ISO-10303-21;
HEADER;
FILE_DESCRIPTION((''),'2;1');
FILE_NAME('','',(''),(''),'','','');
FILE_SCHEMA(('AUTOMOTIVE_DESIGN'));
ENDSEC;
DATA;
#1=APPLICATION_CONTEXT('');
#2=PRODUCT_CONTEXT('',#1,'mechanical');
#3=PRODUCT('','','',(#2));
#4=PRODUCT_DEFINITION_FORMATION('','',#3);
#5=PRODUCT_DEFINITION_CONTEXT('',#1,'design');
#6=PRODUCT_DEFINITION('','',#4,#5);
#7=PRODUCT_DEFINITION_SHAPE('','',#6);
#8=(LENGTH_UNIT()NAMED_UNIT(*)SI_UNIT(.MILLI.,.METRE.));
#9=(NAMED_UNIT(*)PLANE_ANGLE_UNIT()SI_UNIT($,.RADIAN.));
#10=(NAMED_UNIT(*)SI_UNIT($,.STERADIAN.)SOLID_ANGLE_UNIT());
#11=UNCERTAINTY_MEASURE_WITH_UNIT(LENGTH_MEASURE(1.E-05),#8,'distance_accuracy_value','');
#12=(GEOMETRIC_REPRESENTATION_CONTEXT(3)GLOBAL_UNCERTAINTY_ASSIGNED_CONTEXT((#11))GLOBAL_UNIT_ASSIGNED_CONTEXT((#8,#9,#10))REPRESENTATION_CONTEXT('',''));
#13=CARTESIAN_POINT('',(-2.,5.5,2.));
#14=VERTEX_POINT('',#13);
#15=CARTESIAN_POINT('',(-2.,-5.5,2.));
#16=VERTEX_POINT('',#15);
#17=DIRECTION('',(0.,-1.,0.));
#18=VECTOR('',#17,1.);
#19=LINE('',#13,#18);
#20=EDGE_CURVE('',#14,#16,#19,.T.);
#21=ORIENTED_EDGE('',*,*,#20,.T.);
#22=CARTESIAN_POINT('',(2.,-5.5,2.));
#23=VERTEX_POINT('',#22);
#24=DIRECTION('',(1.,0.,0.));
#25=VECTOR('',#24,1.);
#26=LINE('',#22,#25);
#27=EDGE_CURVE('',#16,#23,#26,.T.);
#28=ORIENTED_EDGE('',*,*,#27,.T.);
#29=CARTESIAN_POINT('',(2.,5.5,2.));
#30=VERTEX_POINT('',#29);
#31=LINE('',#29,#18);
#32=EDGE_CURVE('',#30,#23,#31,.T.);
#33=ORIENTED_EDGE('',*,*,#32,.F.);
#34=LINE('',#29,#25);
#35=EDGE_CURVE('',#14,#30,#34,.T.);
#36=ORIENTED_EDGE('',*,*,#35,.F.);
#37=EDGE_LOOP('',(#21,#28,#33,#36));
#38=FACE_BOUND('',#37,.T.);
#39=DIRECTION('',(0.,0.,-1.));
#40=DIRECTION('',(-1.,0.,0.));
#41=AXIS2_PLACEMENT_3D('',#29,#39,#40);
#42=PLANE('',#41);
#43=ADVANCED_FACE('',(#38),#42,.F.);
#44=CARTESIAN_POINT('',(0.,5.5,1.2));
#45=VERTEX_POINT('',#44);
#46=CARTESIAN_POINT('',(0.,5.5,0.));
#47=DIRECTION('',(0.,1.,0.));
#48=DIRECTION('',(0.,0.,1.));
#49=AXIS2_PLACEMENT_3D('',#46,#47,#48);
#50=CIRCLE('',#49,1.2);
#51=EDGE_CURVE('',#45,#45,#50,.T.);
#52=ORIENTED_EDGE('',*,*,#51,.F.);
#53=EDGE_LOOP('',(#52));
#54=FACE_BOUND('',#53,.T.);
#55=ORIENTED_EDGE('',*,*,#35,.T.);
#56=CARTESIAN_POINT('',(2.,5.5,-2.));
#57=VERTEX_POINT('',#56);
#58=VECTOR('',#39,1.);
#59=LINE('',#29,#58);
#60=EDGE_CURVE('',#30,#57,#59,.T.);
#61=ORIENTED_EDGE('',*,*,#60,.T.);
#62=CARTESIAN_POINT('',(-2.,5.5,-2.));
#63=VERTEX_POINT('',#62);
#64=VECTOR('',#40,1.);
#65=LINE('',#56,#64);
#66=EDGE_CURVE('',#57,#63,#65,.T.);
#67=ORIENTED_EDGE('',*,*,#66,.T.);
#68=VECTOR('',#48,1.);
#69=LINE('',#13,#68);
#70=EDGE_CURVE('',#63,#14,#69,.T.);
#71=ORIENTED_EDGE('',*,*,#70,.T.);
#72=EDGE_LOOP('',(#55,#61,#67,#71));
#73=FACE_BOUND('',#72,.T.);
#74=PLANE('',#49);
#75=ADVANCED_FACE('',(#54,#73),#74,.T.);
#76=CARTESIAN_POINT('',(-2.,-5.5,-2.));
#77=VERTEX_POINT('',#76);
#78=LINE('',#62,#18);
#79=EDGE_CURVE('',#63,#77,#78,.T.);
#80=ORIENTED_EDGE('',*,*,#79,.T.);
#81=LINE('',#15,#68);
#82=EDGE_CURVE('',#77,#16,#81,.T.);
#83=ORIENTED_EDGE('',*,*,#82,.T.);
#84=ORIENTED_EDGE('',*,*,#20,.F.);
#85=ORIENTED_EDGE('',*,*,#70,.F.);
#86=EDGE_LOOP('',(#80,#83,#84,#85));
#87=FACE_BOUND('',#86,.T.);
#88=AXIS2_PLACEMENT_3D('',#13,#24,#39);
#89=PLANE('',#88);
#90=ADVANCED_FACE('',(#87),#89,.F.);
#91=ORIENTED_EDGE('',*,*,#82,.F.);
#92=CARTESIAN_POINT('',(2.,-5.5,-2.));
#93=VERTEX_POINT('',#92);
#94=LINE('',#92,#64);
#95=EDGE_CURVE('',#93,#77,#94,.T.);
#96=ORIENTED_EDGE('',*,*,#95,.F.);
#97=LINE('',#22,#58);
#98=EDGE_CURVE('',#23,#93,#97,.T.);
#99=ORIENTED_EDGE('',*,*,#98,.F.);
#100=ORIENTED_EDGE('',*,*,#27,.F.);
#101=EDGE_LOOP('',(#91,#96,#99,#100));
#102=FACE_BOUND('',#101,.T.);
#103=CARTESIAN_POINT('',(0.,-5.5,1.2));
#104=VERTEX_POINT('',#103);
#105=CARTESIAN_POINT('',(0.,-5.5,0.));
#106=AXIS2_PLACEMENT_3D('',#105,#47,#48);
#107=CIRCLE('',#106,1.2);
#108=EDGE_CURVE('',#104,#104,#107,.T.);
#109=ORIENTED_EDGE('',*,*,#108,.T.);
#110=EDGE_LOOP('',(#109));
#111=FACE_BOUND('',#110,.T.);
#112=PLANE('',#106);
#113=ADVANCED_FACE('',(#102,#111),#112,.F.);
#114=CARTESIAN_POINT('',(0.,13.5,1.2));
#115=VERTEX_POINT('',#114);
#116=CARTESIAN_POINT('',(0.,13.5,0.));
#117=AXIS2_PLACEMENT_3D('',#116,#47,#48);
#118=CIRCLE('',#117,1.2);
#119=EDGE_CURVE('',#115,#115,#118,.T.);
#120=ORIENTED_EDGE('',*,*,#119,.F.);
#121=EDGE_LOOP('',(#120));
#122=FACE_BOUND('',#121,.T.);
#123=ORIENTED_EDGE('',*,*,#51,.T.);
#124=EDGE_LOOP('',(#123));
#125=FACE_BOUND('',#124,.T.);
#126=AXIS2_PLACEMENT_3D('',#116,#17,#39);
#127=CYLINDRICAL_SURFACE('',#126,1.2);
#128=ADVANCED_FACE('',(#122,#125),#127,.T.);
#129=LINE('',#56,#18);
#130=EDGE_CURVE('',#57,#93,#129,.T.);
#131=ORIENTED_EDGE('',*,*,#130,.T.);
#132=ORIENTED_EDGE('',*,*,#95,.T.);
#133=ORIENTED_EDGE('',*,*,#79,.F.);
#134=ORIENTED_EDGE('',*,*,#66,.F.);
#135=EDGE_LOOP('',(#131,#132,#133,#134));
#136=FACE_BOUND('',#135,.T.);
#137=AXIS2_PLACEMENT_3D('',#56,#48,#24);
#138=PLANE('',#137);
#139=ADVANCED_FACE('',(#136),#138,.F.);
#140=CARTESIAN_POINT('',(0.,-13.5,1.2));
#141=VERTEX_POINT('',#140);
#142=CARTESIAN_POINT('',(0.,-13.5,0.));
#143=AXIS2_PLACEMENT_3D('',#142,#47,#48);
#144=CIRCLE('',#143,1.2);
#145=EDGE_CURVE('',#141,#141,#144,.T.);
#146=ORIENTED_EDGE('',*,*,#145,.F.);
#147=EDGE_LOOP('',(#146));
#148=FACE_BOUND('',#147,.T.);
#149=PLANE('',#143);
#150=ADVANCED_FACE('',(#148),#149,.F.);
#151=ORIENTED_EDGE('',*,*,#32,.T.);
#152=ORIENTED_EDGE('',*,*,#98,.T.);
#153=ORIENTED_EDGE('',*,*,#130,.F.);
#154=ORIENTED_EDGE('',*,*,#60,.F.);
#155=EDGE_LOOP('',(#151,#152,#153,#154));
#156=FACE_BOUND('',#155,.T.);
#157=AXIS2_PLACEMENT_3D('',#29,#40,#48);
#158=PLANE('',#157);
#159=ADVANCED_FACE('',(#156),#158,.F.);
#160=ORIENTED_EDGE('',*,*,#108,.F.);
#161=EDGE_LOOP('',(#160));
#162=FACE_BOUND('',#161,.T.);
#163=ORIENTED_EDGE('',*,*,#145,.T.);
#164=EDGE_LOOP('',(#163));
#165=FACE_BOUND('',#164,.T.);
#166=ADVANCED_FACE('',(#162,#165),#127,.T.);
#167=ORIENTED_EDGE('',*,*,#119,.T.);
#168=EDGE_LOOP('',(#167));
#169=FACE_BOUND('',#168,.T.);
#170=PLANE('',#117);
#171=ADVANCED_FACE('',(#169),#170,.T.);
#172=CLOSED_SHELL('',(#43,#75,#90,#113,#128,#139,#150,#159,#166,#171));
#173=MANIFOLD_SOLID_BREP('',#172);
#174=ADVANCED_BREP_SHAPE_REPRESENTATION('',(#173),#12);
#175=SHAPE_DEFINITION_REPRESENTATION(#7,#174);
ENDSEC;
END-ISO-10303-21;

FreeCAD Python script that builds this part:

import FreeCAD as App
import Part
import Sketcher

V = App.Vector


def add_polygon(sketch, points):
    """Adds a closed chain of lines whose ends are joined by coincident constraints."""
    first, n = sketch.GeometryCount, len(points)
    for a, b in zip(points, points[1:] + points[:1]):
        sketch.addGeometry(Part.LineSegment(App.Vector(*a, 0), App.Vector(*b, 0)), False)
    for i in range(n):
        sketch.addConstraint(Sketcher.Constraint("Coincident", first + i, 2, first + (i + 1) % n, 1))

doc = App.newDocument("Part")
body = doc.addObject("PartDesign::Body", "Body")

sketch1 = body.newObject("Sketcher::SketchObject", "Sketch")
sketch1.AttachmentSupport = (doc.getObject("XZ_Plane"), [""])
sketch1.MapMode = "FlatFace"
sketch1.addGeometry(Part.Circle(V(0, 0, 0), V(0, 0, 1), 1.2), False)
sketch1.addConstraint([
    Sketcher.Constraint("Coincident", 0, 3, -1, 1),
    Sketcher.Constraint("Diameter", 0, 2.4),
])
pad1 = body.newObject("PartDesign::Pad", "Pad")
pad1.Profile = sketch1
pad1.Length = 27
pad1.Midplane = True

sketch2 = body.newObject("Sketcher::SketchObject", "Sketch001")
sketch2.AttachmentSupport = (doc.getObject("XZ_Plane"), [""])
sketch2.MapMode = "FlatFace"
add_polygon(sketch2, [(-2, -2), (-2, 2), (2, 2), (2, -2)])
sketch2.addConstraint([
    Sketcher.Constraint("Vertical", 0),
    Sketcher.Constraint("Horizontal", 1),
    Sketcher.Constraint("Vertical", 2),
    Sketcher.Constraint("Horizontal", 3),
    Sketcher.Constraint("Symmetric", 0, 2, 2, 2, -1, 1),
    Sketcher.Constraint("Equal", 3, 0),
    Sketcher.Constraint("DistanceX", 1, 1, 1, 2, 4.0),
])
pad2 = body.newObject("PartDesign::Pad", "Pad001")
pad2.Profile = sketch2
pad2.Length = 11
pad2.Midplane = True

doc.recompute()
